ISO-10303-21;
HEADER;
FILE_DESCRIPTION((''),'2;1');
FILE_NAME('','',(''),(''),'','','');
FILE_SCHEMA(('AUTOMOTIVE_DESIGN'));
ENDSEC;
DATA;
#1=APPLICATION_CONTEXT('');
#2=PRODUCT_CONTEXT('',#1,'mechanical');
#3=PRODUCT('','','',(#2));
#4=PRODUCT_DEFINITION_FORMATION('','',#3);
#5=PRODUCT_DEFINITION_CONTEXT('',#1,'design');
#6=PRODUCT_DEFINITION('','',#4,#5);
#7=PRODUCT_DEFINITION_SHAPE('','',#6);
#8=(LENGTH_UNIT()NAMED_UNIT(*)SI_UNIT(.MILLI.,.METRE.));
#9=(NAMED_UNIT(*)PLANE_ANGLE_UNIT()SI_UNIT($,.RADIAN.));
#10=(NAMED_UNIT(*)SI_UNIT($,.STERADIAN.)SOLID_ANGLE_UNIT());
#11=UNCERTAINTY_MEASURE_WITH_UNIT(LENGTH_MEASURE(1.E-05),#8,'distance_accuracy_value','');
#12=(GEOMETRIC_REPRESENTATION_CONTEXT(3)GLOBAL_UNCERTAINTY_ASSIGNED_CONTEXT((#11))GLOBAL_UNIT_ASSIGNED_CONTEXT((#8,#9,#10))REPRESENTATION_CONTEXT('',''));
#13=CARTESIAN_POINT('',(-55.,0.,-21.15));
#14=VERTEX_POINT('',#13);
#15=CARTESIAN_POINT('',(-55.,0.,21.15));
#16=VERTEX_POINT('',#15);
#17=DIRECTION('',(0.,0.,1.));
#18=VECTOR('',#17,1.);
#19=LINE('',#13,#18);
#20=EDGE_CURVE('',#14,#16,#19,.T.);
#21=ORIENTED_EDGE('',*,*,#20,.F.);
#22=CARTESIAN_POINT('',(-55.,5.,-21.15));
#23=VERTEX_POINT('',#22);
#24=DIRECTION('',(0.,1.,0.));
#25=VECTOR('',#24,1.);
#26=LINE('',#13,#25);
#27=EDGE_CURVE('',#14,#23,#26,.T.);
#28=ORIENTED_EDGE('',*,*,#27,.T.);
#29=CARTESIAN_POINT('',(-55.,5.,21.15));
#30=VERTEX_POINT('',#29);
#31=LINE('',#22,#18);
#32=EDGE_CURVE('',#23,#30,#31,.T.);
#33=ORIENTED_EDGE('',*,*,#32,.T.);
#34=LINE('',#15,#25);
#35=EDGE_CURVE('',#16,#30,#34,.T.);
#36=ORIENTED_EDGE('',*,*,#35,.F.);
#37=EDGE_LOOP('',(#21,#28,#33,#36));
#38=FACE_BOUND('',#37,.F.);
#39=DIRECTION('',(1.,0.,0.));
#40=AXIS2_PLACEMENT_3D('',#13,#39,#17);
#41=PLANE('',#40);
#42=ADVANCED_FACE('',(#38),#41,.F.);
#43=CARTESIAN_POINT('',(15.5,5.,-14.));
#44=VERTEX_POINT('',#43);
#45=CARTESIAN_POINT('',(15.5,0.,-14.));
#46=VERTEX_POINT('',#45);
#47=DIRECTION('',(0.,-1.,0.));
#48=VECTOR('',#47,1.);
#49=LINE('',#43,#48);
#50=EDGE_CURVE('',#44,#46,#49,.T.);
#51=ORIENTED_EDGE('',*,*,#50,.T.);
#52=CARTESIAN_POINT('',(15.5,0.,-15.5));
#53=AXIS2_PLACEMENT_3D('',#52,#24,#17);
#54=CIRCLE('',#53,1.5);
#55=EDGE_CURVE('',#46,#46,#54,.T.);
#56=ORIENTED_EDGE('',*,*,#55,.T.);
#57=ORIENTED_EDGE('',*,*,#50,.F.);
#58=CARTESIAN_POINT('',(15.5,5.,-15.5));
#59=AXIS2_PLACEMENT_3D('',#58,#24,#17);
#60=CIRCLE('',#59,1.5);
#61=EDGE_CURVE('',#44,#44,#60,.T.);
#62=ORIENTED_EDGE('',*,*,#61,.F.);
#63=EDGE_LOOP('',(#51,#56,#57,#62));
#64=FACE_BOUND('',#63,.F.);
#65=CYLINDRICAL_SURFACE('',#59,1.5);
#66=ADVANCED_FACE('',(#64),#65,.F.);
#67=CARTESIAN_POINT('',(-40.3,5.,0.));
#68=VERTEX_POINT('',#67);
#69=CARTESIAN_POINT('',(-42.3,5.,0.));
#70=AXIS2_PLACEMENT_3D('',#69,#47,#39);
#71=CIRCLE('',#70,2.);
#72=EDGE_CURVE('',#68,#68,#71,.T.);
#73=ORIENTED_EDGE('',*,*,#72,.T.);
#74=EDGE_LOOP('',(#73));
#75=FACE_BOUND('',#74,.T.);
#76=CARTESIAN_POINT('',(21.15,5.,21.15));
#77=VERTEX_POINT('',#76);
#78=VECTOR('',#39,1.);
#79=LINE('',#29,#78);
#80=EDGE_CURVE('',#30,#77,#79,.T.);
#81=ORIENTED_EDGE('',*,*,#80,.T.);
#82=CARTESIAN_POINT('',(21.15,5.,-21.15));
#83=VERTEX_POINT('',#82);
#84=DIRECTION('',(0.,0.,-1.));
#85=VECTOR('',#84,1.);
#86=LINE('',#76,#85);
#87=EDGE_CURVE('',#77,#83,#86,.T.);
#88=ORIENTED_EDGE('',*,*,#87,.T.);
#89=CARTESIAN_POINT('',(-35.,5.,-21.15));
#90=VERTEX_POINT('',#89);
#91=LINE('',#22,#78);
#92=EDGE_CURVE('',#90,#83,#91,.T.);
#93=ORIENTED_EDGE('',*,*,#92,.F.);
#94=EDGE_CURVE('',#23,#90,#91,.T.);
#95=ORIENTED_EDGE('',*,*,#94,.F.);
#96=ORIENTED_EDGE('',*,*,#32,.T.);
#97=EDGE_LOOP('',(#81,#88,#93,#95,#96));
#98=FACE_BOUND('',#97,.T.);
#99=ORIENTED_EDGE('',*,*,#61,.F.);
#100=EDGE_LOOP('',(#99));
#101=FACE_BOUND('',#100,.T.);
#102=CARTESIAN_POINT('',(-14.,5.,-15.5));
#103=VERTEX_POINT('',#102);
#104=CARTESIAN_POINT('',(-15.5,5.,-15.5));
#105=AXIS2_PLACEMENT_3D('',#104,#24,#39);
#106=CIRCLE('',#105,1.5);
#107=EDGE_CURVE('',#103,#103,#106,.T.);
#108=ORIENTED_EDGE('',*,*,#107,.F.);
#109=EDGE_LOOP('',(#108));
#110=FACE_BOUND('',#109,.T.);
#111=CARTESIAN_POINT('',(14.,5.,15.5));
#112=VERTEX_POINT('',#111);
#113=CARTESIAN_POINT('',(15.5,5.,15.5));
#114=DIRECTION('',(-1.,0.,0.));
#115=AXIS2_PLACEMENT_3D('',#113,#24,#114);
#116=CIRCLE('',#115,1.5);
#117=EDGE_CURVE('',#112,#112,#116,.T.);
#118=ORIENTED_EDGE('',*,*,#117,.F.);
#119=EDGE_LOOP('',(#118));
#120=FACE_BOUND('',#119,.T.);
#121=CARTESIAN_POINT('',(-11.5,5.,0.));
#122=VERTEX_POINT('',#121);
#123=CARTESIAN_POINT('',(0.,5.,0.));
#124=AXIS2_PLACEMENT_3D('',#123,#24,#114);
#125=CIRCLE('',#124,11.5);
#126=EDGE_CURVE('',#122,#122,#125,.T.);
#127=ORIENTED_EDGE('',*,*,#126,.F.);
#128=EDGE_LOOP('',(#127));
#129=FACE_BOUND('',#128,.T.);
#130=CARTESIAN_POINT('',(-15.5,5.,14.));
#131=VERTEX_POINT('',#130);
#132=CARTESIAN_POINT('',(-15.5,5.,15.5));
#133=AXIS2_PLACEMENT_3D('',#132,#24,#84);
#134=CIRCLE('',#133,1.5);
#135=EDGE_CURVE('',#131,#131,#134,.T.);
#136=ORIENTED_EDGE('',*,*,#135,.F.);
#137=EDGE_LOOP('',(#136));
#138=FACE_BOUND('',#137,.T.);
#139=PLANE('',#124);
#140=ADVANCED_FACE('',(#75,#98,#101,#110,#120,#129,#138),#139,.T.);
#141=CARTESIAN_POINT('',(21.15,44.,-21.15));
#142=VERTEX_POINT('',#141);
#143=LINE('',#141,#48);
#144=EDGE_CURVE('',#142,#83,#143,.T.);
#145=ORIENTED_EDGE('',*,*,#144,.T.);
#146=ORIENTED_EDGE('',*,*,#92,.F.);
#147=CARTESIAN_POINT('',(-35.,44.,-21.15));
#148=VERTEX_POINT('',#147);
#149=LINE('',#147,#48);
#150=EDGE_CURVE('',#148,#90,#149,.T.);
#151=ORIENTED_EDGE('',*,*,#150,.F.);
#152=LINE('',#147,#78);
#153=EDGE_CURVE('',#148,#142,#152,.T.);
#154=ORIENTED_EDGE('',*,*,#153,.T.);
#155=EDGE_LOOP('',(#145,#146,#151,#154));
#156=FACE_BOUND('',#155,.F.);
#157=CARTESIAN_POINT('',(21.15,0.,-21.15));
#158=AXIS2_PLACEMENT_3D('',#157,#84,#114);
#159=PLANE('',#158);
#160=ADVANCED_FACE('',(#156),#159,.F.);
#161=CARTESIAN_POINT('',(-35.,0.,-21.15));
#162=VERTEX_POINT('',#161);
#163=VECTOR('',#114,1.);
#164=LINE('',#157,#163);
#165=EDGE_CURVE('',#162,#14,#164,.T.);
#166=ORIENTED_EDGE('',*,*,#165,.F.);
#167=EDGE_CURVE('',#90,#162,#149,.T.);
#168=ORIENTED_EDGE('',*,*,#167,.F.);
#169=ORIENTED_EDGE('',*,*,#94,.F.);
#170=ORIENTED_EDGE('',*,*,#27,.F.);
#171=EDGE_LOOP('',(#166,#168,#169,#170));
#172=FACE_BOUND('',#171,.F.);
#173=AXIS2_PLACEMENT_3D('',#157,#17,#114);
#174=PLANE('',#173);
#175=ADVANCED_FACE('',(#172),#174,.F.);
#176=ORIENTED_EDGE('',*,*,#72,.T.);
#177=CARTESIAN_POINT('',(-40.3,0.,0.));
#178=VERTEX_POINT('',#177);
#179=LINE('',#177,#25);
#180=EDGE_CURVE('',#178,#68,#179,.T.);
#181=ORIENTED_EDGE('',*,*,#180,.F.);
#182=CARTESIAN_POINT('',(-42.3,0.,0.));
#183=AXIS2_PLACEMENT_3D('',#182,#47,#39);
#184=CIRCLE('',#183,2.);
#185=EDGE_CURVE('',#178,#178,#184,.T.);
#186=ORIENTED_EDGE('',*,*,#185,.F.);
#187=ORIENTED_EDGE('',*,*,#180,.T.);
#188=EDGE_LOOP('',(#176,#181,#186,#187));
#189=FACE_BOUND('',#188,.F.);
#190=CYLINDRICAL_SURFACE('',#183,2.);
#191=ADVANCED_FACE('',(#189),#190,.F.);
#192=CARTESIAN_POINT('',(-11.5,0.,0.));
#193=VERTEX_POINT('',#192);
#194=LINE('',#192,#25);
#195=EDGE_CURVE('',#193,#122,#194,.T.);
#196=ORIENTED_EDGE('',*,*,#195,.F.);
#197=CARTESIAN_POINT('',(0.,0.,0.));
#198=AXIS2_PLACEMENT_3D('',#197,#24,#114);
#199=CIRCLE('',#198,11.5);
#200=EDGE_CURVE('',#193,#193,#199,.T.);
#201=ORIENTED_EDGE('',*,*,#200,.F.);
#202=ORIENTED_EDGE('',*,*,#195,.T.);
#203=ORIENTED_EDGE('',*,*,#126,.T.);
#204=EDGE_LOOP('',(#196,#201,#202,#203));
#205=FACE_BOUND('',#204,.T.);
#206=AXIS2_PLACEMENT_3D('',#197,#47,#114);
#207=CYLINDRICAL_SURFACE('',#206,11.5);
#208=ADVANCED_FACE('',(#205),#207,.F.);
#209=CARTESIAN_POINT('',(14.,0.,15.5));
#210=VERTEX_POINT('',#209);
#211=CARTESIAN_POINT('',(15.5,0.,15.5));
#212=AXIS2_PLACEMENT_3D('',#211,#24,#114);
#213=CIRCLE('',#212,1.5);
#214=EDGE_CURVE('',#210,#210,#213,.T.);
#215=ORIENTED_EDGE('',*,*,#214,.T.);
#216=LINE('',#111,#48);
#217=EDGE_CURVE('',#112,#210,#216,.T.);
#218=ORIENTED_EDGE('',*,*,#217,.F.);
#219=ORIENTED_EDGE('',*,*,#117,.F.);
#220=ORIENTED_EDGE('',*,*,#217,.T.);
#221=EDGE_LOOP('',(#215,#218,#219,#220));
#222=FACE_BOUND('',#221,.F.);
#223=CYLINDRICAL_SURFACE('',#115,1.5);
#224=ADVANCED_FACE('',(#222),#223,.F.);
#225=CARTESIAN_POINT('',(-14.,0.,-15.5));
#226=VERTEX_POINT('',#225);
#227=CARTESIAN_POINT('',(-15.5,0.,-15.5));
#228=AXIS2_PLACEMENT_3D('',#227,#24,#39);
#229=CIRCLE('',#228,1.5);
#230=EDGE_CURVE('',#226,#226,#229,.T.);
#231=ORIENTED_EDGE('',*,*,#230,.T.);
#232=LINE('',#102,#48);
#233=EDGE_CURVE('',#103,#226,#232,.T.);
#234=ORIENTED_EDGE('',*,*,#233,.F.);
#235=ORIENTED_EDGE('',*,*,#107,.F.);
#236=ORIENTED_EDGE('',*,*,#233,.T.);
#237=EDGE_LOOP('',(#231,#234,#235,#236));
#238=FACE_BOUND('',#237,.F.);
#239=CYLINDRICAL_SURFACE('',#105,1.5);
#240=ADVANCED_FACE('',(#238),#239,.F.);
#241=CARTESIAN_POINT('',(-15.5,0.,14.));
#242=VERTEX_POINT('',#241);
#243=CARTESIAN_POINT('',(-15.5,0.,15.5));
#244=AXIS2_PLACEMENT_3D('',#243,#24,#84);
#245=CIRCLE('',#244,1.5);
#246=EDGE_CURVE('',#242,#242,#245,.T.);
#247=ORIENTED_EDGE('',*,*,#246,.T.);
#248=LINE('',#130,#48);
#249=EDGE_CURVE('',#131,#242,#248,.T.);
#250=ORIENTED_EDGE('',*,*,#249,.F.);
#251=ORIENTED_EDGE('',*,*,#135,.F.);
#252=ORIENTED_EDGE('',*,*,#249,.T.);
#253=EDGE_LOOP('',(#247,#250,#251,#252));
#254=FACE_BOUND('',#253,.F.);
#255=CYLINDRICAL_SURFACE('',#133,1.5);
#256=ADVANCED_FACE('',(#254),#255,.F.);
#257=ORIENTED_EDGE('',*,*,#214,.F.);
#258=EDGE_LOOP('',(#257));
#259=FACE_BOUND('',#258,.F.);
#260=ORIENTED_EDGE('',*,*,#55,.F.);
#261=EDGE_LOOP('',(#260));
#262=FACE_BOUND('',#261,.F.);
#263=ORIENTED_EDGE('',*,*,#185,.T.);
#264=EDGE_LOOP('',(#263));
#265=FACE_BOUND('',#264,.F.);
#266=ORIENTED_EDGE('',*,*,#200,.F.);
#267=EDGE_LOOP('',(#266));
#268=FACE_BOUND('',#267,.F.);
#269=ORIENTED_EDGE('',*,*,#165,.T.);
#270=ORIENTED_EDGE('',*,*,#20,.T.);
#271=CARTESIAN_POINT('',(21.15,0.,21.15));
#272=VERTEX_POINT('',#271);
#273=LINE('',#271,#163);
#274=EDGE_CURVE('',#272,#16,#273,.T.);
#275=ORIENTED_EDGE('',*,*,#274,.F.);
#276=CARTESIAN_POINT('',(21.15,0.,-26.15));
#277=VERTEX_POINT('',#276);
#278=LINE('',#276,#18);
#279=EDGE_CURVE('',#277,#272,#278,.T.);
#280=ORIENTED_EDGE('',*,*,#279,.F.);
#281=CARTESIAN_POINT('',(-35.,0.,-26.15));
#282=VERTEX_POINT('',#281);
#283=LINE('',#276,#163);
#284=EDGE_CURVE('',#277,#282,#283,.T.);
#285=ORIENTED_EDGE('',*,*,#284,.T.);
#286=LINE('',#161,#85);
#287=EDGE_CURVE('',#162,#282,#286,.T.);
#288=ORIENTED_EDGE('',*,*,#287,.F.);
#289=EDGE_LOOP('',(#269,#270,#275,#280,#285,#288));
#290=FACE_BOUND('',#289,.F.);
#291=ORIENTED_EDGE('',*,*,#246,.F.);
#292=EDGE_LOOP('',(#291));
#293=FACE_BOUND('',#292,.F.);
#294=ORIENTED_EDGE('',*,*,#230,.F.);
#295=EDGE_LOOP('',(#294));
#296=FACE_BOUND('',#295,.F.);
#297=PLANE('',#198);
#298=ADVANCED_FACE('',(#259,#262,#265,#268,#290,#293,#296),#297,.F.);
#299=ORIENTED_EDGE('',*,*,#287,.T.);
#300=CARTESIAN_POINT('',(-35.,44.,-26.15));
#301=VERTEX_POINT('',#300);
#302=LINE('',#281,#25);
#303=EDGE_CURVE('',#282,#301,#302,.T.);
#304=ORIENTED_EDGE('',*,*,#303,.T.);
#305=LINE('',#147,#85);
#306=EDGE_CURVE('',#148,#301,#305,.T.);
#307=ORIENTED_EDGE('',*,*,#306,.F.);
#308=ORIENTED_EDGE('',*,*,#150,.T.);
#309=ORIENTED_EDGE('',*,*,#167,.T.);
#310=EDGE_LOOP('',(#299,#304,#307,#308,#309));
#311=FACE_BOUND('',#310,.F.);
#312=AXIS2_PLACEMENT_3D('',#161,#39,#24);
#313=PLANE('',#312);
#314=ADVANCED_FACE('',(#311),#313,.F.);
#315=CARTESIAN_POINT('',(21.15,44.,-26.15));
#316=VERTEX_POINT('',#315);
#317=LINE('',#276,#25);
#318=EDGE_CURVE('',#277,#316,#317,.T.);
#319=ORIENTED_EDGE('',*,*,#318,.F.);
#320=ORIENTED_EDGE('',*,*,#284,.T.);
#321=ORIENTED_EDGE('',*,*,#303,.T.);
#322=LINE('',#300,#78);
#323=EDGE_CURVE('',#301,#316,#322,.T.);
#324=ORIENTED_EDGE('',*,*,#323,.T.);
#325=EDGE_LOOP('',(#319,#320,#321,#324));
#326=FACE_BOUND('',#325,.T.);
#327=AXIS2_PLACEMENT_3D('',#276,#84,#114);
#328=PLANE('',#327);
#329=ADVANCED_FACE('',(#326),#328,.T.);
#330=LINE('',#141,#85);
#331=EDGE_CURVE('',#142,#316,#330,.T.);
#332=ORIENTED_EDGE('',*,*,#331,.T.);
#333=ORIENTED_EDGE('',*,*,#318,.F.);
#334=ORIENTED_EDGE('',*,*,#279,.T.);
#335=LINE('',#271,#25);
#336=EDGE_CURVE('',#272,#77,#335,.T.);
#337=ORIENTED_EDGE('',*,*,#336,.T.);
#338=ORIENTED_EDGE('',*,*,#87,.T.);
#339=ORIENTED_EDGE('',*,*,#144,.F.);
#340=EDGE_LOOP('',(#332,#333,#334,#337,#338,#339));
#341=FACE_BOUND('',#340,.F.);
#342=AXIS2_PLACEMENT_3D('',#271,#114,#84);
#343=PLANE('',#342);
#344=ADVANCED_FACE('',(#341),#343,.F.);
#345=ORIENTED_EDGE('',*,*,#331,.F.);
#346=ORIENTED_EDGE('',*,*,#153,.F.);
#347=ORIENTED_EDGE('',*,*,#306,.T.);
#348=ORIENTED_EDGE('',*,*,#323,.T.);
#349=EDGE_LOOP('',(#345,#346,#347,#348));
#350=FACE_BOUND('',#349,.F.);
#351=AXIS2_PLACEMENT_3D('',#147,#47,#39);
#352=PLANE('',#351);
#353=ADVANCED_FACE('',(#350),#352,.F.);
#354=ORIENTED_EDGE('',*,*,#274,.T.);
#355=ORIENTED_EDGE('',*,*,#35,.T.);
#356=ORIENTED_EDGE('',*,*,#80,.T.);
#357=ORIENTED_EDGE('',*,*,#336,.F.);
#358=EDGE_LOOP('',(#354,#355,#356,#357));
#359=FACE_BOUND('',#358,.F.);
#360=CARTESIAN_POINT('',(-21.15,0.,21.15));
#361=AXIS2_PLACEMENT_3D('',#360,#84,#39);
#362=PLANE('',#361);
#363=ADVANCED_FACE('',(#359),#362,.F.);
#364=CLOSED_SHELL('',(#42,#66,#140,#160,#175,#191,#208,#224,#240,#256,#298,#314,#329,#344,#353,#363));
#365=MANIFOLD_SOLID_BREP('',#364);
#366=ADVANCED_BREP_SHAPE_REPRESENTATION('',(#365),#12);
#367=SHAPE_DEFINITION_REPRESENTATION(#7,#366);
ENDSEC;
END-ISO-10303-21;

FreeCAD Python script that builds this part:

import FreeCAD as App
import Part
import Sketcher
Q = App.Units.Quantity


def add_polygon(sketch, points):
    """Adds a closed chain of lines whose ends are joined by coincident constraints."""
    first, n = sketch.GeometryCount, len(points)
    for a, b in zip(points, points[1:] + points[:1]):
        sketch.addGeometry(Part.LineSegment(App.Vector(*a, 0), App.Vector(*b, 0)), False)
    for i in range(n):
        sketch.addConstraint(Sketcher.Constraint("Coincident", first + i, 2, first + (i + 1) % n, 1))

doc = App.newDocument("Part")
body = doc.addObject("PartDesign::Body", "Body")

# Sketch on XZ plane
sketch1 = body.newObject("Sketcher::SketchObject", "Sketch")
sketch1.AttachmentSupport = (doc.getObject("XZ_Plane"), [""])
sketch1.MapMode = "FlatFace"
add_polygon(sketch1, [(21.15, -21.15), (-55, -21.15), (-55, 21.15), (21.15, 21.15)])  # lines 0-3
sketch1.addGeometry(Part.Circle(App.Vector(0, 0, 0), App.Vector(0, 0, 1), 11.5), False)  # 4
sketch1.addConstraint(Sketcher.Constraint("Horizontal", 0))
sketch1.addConstraint(Sketcher.Constraint("Vertical", 1))
sketch1.addConstraint(Sketcher.Constraint("Horizontal", 2))
sketch1.addConstraint(Sketcher.Constraint("Vertical", 3))
sketch1.addConstraint(Sketcher.Constraint("Coincident", 4, 3, -1, 1))
sketch1.addConstraint(Sketcher.Constraint("Diameter", 4, Q("23 mm")))
sketch1.addConstraint(Sketcher.Constraint("DistanceY", 1, 1, 1, 2, Q("42.3 mm")))
sketch1.addConstraint(Sketcher.Constraint("DistanceX", 0, 2, -1, 1, Q("55 mm")))
sketch1.addConstraint(Sketcher.Constraint("DistanceX", 0, 2, 0, 1, Q("76.15 mm")))
sketch1.addConstraint(Sketcher.Constraint("DistanceY", 0, 2, -1, 1, Q("21.15 mm")))
pad1 = body.newObject("PartDesign::Pad", "Pad")
pad1.Profile = sketch1
pad1.Length = 5
pad1.Reversed = True

# Sketch on XZ plane
sketch2 = body.newObject("Sketcher::SketchObject", "Sketch001")
sketch2.AttachmentSupport = (doc.getObject("XZ_Plane"), [""])
sketch2.MapMode = "FlatFace"
sketch2.AttachmentOffset = App.Placement(App.Vector(0, 0, -5), App.Rotation())
sketch2.addGeometry(Part.Circle(App.Vector(-15.5, -15.5, 0), App.Vector(0, 0, 1), 1.5), False)
sketch2.addConstraint(Sketcher.Constraint("Diameter", 0, Q("3 mm")))
sketch2.addConstraint(Sketcher.Constraint("DistanceX", 0, 3, -1, 1, Q("15.5 mm")))
sketch2.addConstraint(Sketcher.Constraint("DistanceY", 0, 3, -1, 1, Q("15.5 mm")))
pocket1 = body.newObject("PartDesign::Pocket", "Pocket")
pocket1.Profile = sketch2
pocket1.Type = "ThroughAll"
pocket1.Reversed = True
doc.recompute()

polarpattern = body.newObject("PartDesign::PolarPattern", "PolarPattern")
polarpattern.Originals = [pocket1]
polarpattern.Axis = (doc.getObject("Y_Axis"), [""])
polarpattern.Angle = 360
polarpattern.Occurrences = 4
body.Tip = polarpattern

# Sketch on XZ plane
sketch3 = body.newObject("Sketcher::SketchObject", "Sketch002")
sketch3.AttachmentSupport = (doc.getObject("XZ_Plane"), [""])
sketch3.MapMode = "FlatFace"
sketch3.addGeometry(Part.Circle(App.Vector(-42.3, 0, 0), App.Vector(0, 0, 1), 2), False)
sketch3.addConstraint(Sketcher.Constraint("PointOnObject", 0, 3, -1))
sketch3.addConstraint(Sketcher.Constraint("Diameter", 0, Q("4 mm")))
sketch3.addConstraint(Sketcher.Constraint("DistanceX", 0, 3, -1, 1, Q("42.3 mm")))
pocket2 = body.newObject("PartDesign::Pocket", "Pocket001")
pocket2.Profile = sketch3
pocket2.Type = "ThroughAll"

# Sketch on XY plane
sketch4 = body.newObject("Sketcher::SketchObject", "Sketch003")
sketch4.AttachmentSupport = (doc.getObject("XY_Plane"), [""])
sketch4.MapMode = "FlatFace"
sketch4.AttachmentOffset = App.Placement(App.Vector(0, 0, -21.15), App.Rotation())
add_polygon(sketch4, [(21.15, 0), (-35, 0), (-35, 44), (21.15, 44)])  # lines 0-3
sketch4.addConstraint(Sketcher.Constraint("Horizontal", 0))
sketch4.addConstraint(Sketcher.Constraint("Vertical", 1))
sketch4.addConstraint(Sketcher.Constraint("Horizontal", 2))
sketch4.addConstraint(Sketcher.Constraint("Vertical", 3))
sketch4.addConstraint(Sketcher.Constraint("PointOnObject", 0, 2, -1))
sketch4.addConstraint(Sketcher.Constraint("DistanceY", 1, 1, 1, 2, Q("44 mm")))
sketch4.addConstraint(Sketcher.Constraint("DistanceX", 0, 2, -1, 1, Q("35 mm")))
sketch4.addConstraint(Sketcher.Constraint("DistanceX", 0, 2, 0, 1, Q("56.15 mm")))
pad2 = body.newObject("PartDesign::Pad", "Pad001")
pad2.Profile = sketch4
pad2.Length = 5
pad2.Reversed = True

doc.recompute()
